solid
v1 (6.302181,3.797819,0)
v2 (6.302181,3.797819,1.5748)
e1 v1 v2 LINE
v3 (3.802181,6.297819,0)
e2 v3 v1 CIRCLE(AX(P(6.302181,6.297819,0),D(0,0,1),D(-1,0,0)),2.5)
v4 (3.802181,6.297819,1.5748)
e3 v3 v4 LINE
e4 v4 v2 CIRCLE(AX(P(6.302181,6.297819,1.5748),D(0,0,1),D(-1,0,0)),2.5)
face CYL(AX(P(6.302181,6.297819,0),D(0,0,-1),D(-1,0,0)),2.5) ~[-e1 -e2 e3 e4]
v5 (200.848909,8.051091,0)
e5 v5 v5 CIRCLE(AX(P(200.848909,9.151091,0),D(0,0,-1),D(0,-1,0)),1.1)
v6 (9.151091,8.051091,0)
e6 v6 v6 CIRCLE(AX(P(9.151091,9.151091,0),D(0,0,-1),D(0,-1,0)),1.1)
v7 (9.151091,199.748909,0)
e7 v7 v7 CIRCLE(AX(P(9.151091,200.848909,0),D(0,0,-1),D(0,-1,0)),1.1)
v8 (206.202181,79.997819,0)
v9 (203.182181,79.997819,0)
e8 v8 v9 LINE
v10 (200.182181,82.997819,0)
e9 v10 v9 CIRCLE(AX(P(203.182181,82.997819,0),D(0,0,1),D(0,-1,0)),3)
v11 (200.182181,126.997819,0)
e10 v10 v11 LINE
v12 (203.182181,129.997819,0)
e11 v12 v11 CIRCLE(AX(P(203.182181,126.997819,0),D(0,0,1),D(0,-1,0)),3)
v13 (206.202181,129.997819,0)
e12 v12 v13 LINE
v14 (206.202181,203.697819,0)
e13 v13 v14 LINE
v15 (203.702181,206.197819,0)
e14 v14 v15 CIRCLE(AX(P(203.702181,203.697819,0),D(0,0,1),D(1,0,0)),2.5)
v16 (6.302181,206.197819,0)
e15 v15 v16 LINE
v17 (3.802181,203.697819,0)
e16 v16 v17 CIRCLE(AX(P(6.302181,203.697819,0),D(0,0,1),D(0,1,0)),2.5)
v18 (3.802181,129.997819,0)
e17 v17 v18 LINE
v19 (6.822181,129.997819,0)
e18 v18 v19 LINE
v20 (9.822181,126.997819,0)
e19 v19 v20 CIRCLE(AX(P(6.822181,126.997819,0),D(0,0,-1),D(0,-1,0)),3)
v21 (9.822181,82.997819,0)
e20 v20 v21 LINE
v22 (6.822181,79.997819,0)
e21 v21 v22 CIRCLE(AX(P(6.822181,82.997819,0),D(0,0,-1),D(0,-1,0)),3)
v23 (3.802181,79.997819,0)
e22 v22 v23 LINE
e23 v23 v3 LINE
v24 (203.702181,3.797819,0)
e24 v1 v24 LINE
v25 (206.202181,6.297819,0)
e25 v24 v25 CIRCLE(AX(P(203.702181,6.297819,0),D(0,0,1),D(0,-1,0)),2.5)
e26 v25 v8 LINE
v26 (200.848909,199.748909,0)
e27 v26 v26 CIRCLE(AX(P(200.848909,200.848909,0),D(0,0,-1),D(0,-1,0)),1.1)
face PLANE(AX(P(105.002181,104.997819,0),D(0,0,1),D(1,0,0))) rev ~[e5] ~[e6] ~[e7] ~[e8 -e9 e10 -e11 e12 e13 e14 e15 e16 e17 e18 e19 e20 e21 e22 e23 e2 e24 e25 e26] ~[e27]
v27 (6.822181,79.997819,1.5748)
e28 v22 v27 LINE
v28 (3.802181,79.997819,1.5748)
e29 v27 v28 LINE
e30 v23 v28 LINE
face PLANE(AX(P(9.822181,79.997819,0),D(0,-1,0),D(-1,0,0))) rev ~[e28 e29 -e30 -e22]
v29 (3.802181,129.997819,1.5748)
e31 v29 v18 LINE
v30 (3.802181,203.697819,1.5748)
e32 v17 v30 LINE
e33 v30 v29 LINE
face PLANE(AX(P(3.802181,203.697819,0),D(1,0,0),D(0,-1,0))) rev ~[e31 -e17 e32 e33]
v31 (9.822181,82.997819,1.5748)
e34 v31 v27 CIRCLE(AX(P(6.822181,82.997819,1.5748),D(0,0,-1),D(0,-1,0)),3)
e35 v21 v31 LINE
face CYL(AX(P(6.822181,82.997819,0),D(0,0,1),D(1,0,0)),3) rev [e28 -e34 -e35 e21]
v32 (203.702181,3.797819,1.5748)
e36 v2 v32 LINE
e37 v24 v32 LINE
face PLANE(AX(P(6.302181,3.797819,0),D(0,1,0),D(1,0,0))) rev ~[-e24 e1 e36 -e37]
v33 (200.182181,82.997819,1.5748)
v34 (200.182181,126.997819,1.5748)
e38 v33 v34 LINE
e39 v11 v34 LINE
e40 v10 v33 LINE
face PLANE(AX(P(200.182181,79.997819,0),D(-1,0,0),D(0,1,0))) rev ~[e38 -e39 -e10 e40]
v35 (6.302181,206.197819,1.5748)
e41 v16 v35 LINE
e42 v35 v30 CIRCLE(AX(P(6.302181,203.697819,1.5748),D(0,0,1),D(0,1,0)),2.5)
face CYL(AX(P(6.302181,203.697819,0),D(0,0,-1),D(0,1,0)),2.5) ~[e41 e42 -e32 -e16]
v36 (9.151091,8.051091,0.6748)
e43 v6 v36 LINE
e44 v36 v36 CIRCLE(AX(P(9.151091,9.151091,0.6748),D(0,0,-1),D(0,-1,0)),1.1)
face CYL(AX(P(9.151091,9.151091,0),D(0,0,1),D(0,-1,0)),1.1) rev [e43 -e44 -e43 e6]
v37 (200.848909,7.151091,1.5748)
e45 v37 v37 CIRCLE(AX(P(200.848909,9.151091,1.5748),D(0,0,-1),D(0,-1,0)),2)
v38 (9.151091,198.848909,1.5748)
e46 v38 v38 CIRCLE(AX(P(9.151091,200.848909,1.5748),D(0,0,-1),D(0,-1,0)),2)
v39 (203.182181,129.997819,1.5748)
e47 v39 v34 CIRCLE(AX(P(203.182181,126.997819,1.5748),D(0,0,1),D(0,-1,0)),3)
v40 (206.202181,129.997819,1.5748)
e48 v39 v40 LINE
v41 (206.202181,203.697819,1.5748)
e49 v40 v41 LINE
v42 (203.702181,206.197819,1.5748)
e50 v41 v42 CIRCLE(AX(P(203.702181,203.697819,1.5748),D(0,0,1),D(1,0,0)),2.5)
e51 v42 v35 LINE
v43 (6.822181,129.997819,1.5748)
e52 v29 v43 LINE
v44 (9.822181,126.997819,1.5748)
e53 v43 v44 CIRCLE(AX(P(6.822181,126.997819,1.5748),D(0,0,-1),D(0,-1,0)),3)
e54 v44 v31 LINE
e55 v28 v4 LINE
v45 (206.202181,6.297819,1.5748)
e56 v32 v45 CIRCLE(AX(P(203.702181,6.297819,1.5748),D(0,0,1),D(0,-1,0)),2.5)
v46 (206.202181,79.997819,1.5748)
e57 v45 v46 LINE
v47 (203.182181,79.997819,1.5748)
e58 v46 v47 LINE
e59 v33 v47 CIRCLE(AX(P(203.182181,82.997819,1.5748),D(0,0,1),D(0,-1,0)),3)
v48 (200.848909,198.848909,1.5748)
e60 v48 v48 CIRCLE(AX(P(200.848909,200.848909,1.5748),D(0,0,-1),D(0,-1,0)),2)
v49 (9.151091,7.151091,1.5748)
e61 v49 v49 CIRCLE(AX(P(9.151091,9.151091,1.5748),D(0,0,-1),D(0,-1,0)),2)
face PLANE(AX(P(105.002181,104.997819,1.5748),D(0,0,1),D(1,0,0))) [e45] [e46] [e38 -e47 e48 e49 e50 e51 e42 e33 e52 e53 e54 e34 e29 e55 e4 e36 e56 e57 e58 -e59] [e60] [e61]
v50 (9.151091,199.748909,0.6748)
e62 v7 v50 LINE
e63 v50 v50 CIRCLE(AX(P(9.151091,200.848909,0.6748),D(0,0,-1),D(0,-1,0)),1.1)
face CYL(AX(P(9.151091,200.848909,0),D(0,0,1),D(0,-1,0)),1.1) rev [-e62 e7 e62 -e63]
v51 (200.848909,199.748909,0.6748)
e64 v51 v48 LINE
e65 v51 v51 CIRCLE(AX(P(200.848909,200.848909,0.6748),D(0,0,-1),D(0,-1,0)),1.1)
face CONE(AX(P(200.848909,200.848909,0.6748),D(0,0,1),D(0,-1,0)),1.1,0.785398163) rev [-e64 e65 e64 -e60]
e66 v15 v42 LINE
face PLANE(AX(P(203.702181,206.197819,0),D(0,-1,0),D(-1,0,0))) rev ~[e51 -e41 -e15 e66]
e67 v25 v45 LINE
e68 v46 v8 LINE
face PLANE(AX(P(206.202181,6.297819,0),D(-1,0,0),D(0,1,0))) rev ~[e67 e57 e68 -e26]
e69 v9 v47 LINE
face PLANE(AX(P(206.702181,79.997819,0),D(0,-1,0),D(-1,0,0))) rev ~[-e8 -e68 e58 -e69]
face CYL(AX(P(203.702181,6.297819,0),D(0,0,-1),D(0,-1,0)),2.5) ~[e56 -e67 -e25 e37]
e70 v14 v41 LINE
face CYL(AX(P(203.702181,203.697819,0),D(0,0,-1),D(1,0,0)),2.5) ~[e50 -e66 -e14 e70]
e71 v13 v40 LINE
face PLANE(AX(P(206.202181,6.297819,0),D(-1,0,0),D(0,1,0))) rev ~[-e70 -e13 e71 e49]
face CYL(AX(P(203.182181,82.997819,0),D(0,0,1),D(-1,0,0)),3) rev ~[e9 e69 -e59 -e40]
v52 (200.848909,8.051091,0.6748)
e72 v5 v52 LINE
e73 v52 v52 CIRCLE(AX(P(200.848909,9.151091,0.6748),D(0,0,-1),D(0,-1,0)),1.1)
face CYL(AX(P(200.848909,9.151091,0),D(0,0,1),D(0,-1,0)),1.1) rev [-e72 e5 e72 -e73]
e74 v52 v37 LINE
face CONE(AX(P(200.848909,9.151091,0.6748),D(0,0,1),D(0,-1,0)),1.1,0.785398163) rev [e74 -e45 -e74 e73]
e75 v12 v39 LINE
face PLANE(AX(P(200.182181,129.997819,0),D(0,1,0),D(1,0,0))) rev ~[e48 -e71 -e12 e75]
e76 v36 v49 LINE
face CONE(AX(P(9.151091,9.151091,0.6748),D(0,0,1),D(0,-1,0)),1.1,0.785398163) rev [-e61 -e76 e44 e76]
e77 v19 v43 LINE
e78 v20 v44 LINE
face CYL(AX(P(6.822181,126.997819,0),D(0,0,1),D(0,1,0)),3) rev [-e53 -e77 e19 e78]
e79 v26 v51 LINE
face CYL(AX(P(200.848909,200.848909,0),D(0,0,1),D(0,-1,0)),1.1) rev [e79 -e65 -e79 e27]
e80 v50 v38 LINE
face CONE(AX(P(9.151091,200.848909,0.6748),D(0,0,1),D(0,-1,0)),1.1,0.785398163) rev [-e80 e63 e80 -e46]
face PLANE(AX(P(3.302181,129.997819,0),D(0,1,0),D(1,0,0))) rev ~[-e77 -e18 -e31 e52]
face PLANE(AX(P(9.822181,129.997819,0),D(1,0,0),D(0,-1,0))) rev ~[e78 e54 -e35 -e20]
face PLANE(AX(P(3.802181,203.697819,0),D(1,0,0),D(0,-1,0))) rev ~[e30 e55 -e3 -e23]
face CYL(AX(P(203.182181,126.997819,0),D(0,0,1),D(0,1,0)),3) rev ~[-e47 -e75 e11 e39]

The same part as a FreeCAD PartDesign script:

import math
import FreeCAD as App
import Part
import Sketcher
from FreeCAD import Vector
Q = App.Units.Quantity


def edges_at(feature, points):
    """Names of the edges that pass closest to the given points."""
    edges = feature.Shape.Edges
    near = lambda p: min(range(len(edges)), key=lambda i: edges[i].distToShape(Part.Vertex(*p))[0])
    return sorted({f"Edge{near(p) + 1}" for p in points})


def add_polygon(sketch, points):
    """Adds a closed chain of lines whose ends are joined by coincident constraints."""
    first, n = sketch.GeometryCount, len(points)
    for a, b in zip(points, points[1:] + points[:1]):
        sketch.addGeometry(Part.LineSegment(App.Vector(*a, 0), App.Vector(*b, 0)), False)
    for i in range(n):
        sketch.addConstraint(Sketcher.Constraint("Coincident", first + i, 2, first + (i + 1) % n, 1))

doc = App.newDocument("Part")
params = doc.addObject("Spreadsheet::Sheet", "Params")
for row, (alias, value) in enumerate([
    ("sketch1_height", "50 mm"),
    ("sketch1_width", "203.4 mm"),
    ("sketch1_height2", "76.7 mm"),
    ("sketch1_width2", "6.52 mm"),
    ("pad1_length", "1.5748 mm"),
    ("sketch2_width", "2 mm"),
    ("sketch2_width2", "1.1 mm"),
    ("groove_angle", "360 deg"),
    ("linearpattern_pitch", "191.697819 mm"),
    ("linearpattern2_pitch", "191.697819 mm"),
    ("linearpattern3_pitch", "271.101655 mm"),
    ("fillet_radius", "3 mm"),
    ("sketch3_radius", "3 mm"),
    ("sketch3_radius2", "2.5 mm"),
    ("sketch3_width", "197.4 mm"),
    ("pocket1_length", "1.5748 mm"),
], start=1):
    params.set(f"A{row}", alias)
    params.set(f"B{row}", "=" + value)
    params.setAlias(f"B{row}", alias)

body = doc.addObject("PartDesign::Body", "Body")

sketch1 = body.newObject("Sketcher::SketchObject", "Sketch")
sketch1.AttachmentSupport = (doc.getObject("XY_Plane"), [""])
sketch1.MapMode = "FlatFace"
add_polygon(sketch1, [(3, 207), (3, 130), (10, 130), (10, 80), (3, 80), (3, 3), (207, 3), (207, 80), (200, 80), (200, 130), (207, 130), (207, 207)])
sketch1.addConstraint(Sketcher.Constraint("Vertical", 0))
sketch1.addConstraint(Sketcher.Constraint("Horizontal", 1))
sketch1.addConstraint(Sketcher.Constraint("Vertical", 2))
sketch1.addConstraint(Sketcher.Constraint("Horizontal", 3))
sketch1.addConstraint(Sketcher.Constraint("Vertical", 4))
sketch1.addConstraint(Sketcher.Constraint("Horizontal", 5))
sketch1.addConstraint(Sketcher.Constraint("Vertical", 6))
sketch1.addConstraint(Sketcher.Constraint("Horizontal", 7))
sketch1.addConstraint(Sketcher.Constraint("Vertical", 8))
sketch1.addConstraint(Sketcher.Constraint("Horizontal", 9))
sketch1.addConstraint(Sketcher.Constraint("Vertical", 10))
sketch1.addConstraint(Sketcher.Constraint("Horizontal", 11))
sketch1.addConstraint(Sketcher.Constraint("Horizontal", 3, 2, 6, 2))
sketch1.addConstraint(Sketcher.Constraint("Horizontal", 1, 2, 8, 2))
sketch1.addConstraint(Sketcher.Constraint("Vertical", 0, 2, 3, 2))
sketch1.addConstraint(Sketcher.Constraint("Vertical", 6, 2, 9, 2))
sketch1.addConstraint(Sketcher.Constraint("Equal", 3, 7))
sketch1.addConstraint(Sketcher.Constraint("Equal", 0, 4))
sketch1.addConstraint(Sketcher.Constraint("DistanceY", 2, 2, 2, 1, Q("50 mm")))
sketch1.addConstraint(Sketcher.Constraint("DistanceX", 5, 1, 5, 2, Q("203.4 mm")))
sketch1.addConstraint(Sketcher.Constraint("DistanceY", 0, 2, 0, 1, Q("76.7 mm")))
sketch1.addConstraint(Sketcher.Constraint("DistanceX", 1, 1, 1, 2, Q("6.52 mm")))
sketch1.addConstraint(Sketcher.Constraint("DistanceX", -1, 1, 0, 2, Q("3.302181 mm")))
sketch1.addConstraint(Sketcher.Constraint("DistanceY", -1, 1, 0, 2, Q("129.997819 mm")))
sketch1.setExpression("Constraints[30]", "Params.sketch1_height")
sketch1.setExpression("Constraints[31]", "Params.sketch1_width")
sketch1.setExpression("Constraints[32]", "Params.sketch1_height2")
sketch1.setExpression("Constraints[33]", "Params.sketch1_width2")
pad1 = body.newObject("PartDesign::Pad", "Pad")
pad1.Profile = sketch1
pad1.setExpression("Length", "Params.pad1_length")

sketch2 = body.newObject("Sketcher::SketchObject", "Sketch001")
sketch2.AttachmentSupport = (doc.getObject("YZ_Plane"), [""])
sketch2.MapMode = "FlatFace"
sketch2.AttachmentOffset = App.Placement(Vector(0, 0, 200.848909), App.Rotation())
add_polygon(sketch2, [(9.2, 0), (9.2, 1.6), (7.2, 1.6), (8.1, 0.7), (8.1, 0)])
sketch2.addGeometry(Part.LineSegment(Vector(9.2, 1.6, 0), Vector(9.2, 0, 0)), True)
sketch2.addConstraint(Sketcher.Constraint("Vertical", 0))
sketch2.addConstraint(Sketcher.Constraint("Horizontal", 1))
sketch2.addConstraint(Sketcher.Constraint("Vertical", 3))
sketch2.addConstraint(Sketcher.Constraint("Horizontal", 4))
sketch2.addConstraint(Sketcher.Constraint("Vertical", 5))
sketch2.addConstraint(Sketcher.Constraint("Coincident", 5, 1, 0, 2))
sketch2.addConstraint(Sketcher.Constraint("PointOnObject", 3, 2, -1))
sketch2.addConstraint(Sketcher.Constraint("PointOnObject", 5, 2, -1))
sketch2.addConstraint(Sketcher.Constraint("DistanceX", 1, 2, 1, 1, Q("2 mm")))
sketch2.addConstraint(Sketcher.Constraint("Angle", 2, Q("-45 deg")))
sketch2.addConstraint(Sketcher.Constraint("DistanceX", 4, 1, 4, 2, Q("1.1 mm")))
sketch2.addConstraint(Sketcher.Constraint("DistanceY", 0, 1, 0, 2, Q("1.5748 mm")))
sketch2.addConstraint(Sketcher.Constraint("DistanceX", -1, 1, 0, 2, Q("9.151091 mm")))
sketch2.setExpression("Constraints[13]", "Params.sketch2_width")
sketch2.setExpression("Constraints[15]", "Params.sketch2_width2")
groove = body.newObject("PartDesign::Groove", "Groove")
groove.Profile = sketch2
groove.ReferenceAxis = (sketch2, ["Axis0"])
groove.setExpression("Angle", "Params.groove_angle")
doc.recompute()

linearpattern = body.newObject("PartDesign::LinearPattern", "LinearPattern")
linearpattern.Originals = [groove]
linearpattern.Direction = (doc.getObject("X_Axis"), [""])
linearpattern.Mode = "offset"
linearpattern.setExpression("Offset", "Params.linearpattern_pitch")
linearpattern.Occurrences = 2
linearpattern.Reversed = True
body.Tip = linearpattern
doc.recompute()

linearpattern2 = body.newObject("PartDesign::LinearPattern", "LinearPattern001")
linearpattern2.Originals = [groove]
linearpattern2.Direction = (doc.getObject("Y_Axis"), [""])
linearpattern2.Mode = "offset"
linearpattern2.setExpression("Offset", "Params.linearpattern2_pitch")
linearpattern2.Occurrences = 2
body.Tip = linearpattern2
doc.recompute()

datumline = body.newObject("PartDesign::Line", "DatumLine")
datumline.Placement = App.Placement(Vector(0, 0, 0), App.Rotation(Vector(0, 0, 1), Vector(-0.707106781, 0.707106781, 0)))
linearpattern3 = body.newObject("PartDesign::LinearPattern", "LinearPattern002")
linearpattern3.Originals = [groove]
linearpattern3.Direction = (datumline, [""])
linearpattern3.Mode = "offset"
linearpattern3.setExpression("Offset", "Params.linearpattern3_pitch")
linearpattern3.Occurrences = 2
body.Tip = linearpattern3
doc.recompute()

fillet = body.newObject("PartDesign::Fillet", "Fillet")
fillet.Base = (linearpattern3, edges_at(linearpattern3, [
    (206.702, 206.698, 0.787),
    (200.182, 129.998, 0.787),
    (200.182, 79.998, 0.787),
    (206.702, 3.298, 0.787),
    (3.302, 3.298, 0.787),
    (9.822, 79.998, 0.787),
    (9.822, 129.998, 0.787),
    (3.302, 206.698, 0.787),
]))
fillet.setExpression("Radius", "Params.fillet_radius")

sketch3 = body.newObject("Sketcher::SketchObject", "Sketch002")
sketch3.AttachmentSupport = (doc.getObject("XY_Plane"), [""])
sketch3.MapMode = "FlatFace"
sketch3.addGeometry(Part.LineSegment(Vector(6.3, 3.3, 0), Vector(203.7, 3.3, 0)), False)
sketch3.addGeometry(Part.ArcOfCircle(Part.Circle(Vector(203.7, 6.3, 0), Vector(0, 0, 1), 3), math.radians(-90), math.radians(0)), False)
sketch3.addGeometry(Part.LineSegment(Vector(206.7, 6.3, 0), Vector(206.7, 203.7, 0)), False)
sketch3.addGeometry(Part.ArcOfCircle(Part.Circle(Vector(203.7, 203.7, 0), Vector(0, 0, 1), 3), math.radians(0), math.radians(90)), False)
sketch3.addGeometry(Part.LineSegment(Vector(203.7, 206.7, 0), Vector(6.3, 206.7, 0)), False)
sketch3.addGeometry(Part.ArcOfCircle(Part.Circle(Vector(6.3, 203.7, 0), Vector(0, 0, 1), 3), math.radians(90), math.radians(180)), False)
sketch3.addGeometry(Part.LineSegment(Vector(3.3, 203.7, 0), Vector(3.3, 6.3, 0)), False)
sketch3.addGeometry(Part.ArcOfCircle(Part.Circle(Vector(6.3, 6.3, 0), Vector(0, 0, 1), 3), math.radians(180), math.radians(270)), False)
sketch3.addGeometry(Part.LineSegment(Vector(203.7, 3.8, 0), Vector(6.3, 3.8, 0)), False)
sketch3.addGeometry(Part.ArcOfCircle(Part.Circle(Vector(6.3, 6.3, 0), Vector(0, 0, 1), 2.5), math.radians(180), math.radians(270)), False)
sketch3.addGeometry(Part.LineSegment(Vector(3.8, 6.3, 0), Vector(3.8, 203.7, 0)), False)
sketch3.addGeometry(Part.ArcOfCircle(Part.Circle(Vector(6.3, 203.7, 0), Vector(0, 0, 1), 2.5), math.radians(90), math.radians(180)), False)
sketch3.addGeometry(Part.LineSegment(Vector(6.3, 206.2, 0), Vector(203.7, 206.2, 0)), False)
sketch3.addGeometry(Part.ArcOfCircle(Part.Circle(Vector(203.7, 203.7, 0), Vector(0, 0, 1), 2.5), math.radians(0), math.radians(90)), False)
sketch3.addGeometry(Part.LineSegment(Vector(206.2, 203.7, 0), Vector(206.2, 6.3, 0)), False)
sketch3.addGeometry(Part.ArcOfCircle(Part.Circle(Vector(203.7, 6.3, 0), Vector(0, 0, 1), 2.5), math.radians(-90), math.radians(0)), False)
sketch3.addConstraint(Sketcher.Constraint("Tangent", 0, 2, 1, 1))
sketch3.addConstraint(Sketcher.Constraint("Tangent", 1, 2, 2, 1))
sketch3.addConstraint(Sketcher.Constraint("Tangent", 2, 2, 3, 1))
sketch3.addConstraint(Sketcher.Constraint("Tangent", 3, 2, 4, 1))
sketch3.addConstraint(Sketcher.Constraint("Tangent", 4, 2, 5, 1))
sketch3.addConstraint(Sketcher.Constraint("Tangent", 5, 2, 6, 1))
sketch3.addConstraint(Sketcher.Constraint("Tangent", 6, 2, 7, 1))
sketch3.addConstraint(Sketcher.Constraint("Tangent", 7, 2, 0, 1))
sketch3.addConstraint(Sketcher.Constraint("Tangent", 8, 2, 9, 2))
sketch3.addConstraint(Sketcher.Constraint("Tangent", 9, 1, 10, 1))
sketch3.addConstraint(Sketcher.Constraint("Tangent", 10, 2, 11, 2))
sketch3.addConstraint(Sketcher.Constraint("Tangent", 11, 1, 12, 1))
sketch3.addConstraint(Sketcher.Constraint("Tangent", 12, 2, 13, 2))
sketch3.addConstraint(Sketcher.Constraint("Tangent", 13, 1, 14, 1))
sketch3.addConstraint(Sketcher.Constraint("Tangent", 14, 2, 15, 2))
sketch3.addConstraint(Sketcher.Constraint("Tangent", 15, 1, 8, 1))
sketch3.addConstraint(Sketcher.Constraint("Horizontal", 0))
sketch3.addConstraint(Sketcher.Constraint("Vertical", 2))
sketch3.addConstraint(Sketcher.Constraint("Horizontal", 4))
sketch3.addConstraint(Sketcher.Constraint("Vertical", 6))
sketch3.addConstraint(Sketcher.Constraint("Horizontal", 8))
sketch3.addConstraint(Sketcher.Constraint("Vertical", 10))
sketch3.addConstraint(Sketcher.Constraint("Horizontal", 12))
sketch3.addConstraint(Sketcher.Constraint("Vertical", 14))
sketch3.addConstraint(Sketcher.Constraint("Coincident", 9, 3, 7, 3))
sketch3.addConstraint(Sketcher.Constraint("Coincident", 11, 3, 5, 3))
sketch3.addConstraint(Sketcher.Constraint("Coincident", 13, 3, 3, 3))
sketch3.addConstraint(Sketcher.Constraint("Equal", 1, 3))
sketch3.addConstraint(Sketcher.Constraint("Equal", 3, 5))
sketch3.addConstraint(Sketcher.Constraint("Equal", 5, 7))
sketch3.addConstraint(Sketcher.Constraint("Equal", 13, 15))
sketch3.addConstraint(Sketcher.Constraint("Equal", 12, 2))
sketch3.addConstraint(Sketcher.Constraint("Radius", 1, Q("3 mm")))
sketch3.addConstraint(Sketcher.Constraint("Radius", 9, Q("2.5 mm")))
sketch3.addConstraint(Sketcher.Constraint("DistanceX", 0, 1, 0, 2, Q("197.4 mm")))
sketch3.addConstraint(Sketcher.Constraint("DistanceX", -1, 1, 1, 3, Q("203.702181 mm")))
sketch3.addConstraint(Sketcher.Constraint("DistanceY", -1, 1, 1, 3, Q("6.297819 mm")))
sketch3.setExpression("Constraints[32]", "Params.sketch3_radius")
sketch3.setExpression("Constraints[33]", "Params.sketch3_radius2")
sketch3.setExpression("Constraints[34]", "Params.sketch3_width")
pocket1 = body.newObject("PartDesign::Pocket", "Pocket")
pocket1.Profile = sketch3
pocket1.setExpression("Length", "Params.pocket1_length")
pocket1.Reversed = True

doc.recompute()
